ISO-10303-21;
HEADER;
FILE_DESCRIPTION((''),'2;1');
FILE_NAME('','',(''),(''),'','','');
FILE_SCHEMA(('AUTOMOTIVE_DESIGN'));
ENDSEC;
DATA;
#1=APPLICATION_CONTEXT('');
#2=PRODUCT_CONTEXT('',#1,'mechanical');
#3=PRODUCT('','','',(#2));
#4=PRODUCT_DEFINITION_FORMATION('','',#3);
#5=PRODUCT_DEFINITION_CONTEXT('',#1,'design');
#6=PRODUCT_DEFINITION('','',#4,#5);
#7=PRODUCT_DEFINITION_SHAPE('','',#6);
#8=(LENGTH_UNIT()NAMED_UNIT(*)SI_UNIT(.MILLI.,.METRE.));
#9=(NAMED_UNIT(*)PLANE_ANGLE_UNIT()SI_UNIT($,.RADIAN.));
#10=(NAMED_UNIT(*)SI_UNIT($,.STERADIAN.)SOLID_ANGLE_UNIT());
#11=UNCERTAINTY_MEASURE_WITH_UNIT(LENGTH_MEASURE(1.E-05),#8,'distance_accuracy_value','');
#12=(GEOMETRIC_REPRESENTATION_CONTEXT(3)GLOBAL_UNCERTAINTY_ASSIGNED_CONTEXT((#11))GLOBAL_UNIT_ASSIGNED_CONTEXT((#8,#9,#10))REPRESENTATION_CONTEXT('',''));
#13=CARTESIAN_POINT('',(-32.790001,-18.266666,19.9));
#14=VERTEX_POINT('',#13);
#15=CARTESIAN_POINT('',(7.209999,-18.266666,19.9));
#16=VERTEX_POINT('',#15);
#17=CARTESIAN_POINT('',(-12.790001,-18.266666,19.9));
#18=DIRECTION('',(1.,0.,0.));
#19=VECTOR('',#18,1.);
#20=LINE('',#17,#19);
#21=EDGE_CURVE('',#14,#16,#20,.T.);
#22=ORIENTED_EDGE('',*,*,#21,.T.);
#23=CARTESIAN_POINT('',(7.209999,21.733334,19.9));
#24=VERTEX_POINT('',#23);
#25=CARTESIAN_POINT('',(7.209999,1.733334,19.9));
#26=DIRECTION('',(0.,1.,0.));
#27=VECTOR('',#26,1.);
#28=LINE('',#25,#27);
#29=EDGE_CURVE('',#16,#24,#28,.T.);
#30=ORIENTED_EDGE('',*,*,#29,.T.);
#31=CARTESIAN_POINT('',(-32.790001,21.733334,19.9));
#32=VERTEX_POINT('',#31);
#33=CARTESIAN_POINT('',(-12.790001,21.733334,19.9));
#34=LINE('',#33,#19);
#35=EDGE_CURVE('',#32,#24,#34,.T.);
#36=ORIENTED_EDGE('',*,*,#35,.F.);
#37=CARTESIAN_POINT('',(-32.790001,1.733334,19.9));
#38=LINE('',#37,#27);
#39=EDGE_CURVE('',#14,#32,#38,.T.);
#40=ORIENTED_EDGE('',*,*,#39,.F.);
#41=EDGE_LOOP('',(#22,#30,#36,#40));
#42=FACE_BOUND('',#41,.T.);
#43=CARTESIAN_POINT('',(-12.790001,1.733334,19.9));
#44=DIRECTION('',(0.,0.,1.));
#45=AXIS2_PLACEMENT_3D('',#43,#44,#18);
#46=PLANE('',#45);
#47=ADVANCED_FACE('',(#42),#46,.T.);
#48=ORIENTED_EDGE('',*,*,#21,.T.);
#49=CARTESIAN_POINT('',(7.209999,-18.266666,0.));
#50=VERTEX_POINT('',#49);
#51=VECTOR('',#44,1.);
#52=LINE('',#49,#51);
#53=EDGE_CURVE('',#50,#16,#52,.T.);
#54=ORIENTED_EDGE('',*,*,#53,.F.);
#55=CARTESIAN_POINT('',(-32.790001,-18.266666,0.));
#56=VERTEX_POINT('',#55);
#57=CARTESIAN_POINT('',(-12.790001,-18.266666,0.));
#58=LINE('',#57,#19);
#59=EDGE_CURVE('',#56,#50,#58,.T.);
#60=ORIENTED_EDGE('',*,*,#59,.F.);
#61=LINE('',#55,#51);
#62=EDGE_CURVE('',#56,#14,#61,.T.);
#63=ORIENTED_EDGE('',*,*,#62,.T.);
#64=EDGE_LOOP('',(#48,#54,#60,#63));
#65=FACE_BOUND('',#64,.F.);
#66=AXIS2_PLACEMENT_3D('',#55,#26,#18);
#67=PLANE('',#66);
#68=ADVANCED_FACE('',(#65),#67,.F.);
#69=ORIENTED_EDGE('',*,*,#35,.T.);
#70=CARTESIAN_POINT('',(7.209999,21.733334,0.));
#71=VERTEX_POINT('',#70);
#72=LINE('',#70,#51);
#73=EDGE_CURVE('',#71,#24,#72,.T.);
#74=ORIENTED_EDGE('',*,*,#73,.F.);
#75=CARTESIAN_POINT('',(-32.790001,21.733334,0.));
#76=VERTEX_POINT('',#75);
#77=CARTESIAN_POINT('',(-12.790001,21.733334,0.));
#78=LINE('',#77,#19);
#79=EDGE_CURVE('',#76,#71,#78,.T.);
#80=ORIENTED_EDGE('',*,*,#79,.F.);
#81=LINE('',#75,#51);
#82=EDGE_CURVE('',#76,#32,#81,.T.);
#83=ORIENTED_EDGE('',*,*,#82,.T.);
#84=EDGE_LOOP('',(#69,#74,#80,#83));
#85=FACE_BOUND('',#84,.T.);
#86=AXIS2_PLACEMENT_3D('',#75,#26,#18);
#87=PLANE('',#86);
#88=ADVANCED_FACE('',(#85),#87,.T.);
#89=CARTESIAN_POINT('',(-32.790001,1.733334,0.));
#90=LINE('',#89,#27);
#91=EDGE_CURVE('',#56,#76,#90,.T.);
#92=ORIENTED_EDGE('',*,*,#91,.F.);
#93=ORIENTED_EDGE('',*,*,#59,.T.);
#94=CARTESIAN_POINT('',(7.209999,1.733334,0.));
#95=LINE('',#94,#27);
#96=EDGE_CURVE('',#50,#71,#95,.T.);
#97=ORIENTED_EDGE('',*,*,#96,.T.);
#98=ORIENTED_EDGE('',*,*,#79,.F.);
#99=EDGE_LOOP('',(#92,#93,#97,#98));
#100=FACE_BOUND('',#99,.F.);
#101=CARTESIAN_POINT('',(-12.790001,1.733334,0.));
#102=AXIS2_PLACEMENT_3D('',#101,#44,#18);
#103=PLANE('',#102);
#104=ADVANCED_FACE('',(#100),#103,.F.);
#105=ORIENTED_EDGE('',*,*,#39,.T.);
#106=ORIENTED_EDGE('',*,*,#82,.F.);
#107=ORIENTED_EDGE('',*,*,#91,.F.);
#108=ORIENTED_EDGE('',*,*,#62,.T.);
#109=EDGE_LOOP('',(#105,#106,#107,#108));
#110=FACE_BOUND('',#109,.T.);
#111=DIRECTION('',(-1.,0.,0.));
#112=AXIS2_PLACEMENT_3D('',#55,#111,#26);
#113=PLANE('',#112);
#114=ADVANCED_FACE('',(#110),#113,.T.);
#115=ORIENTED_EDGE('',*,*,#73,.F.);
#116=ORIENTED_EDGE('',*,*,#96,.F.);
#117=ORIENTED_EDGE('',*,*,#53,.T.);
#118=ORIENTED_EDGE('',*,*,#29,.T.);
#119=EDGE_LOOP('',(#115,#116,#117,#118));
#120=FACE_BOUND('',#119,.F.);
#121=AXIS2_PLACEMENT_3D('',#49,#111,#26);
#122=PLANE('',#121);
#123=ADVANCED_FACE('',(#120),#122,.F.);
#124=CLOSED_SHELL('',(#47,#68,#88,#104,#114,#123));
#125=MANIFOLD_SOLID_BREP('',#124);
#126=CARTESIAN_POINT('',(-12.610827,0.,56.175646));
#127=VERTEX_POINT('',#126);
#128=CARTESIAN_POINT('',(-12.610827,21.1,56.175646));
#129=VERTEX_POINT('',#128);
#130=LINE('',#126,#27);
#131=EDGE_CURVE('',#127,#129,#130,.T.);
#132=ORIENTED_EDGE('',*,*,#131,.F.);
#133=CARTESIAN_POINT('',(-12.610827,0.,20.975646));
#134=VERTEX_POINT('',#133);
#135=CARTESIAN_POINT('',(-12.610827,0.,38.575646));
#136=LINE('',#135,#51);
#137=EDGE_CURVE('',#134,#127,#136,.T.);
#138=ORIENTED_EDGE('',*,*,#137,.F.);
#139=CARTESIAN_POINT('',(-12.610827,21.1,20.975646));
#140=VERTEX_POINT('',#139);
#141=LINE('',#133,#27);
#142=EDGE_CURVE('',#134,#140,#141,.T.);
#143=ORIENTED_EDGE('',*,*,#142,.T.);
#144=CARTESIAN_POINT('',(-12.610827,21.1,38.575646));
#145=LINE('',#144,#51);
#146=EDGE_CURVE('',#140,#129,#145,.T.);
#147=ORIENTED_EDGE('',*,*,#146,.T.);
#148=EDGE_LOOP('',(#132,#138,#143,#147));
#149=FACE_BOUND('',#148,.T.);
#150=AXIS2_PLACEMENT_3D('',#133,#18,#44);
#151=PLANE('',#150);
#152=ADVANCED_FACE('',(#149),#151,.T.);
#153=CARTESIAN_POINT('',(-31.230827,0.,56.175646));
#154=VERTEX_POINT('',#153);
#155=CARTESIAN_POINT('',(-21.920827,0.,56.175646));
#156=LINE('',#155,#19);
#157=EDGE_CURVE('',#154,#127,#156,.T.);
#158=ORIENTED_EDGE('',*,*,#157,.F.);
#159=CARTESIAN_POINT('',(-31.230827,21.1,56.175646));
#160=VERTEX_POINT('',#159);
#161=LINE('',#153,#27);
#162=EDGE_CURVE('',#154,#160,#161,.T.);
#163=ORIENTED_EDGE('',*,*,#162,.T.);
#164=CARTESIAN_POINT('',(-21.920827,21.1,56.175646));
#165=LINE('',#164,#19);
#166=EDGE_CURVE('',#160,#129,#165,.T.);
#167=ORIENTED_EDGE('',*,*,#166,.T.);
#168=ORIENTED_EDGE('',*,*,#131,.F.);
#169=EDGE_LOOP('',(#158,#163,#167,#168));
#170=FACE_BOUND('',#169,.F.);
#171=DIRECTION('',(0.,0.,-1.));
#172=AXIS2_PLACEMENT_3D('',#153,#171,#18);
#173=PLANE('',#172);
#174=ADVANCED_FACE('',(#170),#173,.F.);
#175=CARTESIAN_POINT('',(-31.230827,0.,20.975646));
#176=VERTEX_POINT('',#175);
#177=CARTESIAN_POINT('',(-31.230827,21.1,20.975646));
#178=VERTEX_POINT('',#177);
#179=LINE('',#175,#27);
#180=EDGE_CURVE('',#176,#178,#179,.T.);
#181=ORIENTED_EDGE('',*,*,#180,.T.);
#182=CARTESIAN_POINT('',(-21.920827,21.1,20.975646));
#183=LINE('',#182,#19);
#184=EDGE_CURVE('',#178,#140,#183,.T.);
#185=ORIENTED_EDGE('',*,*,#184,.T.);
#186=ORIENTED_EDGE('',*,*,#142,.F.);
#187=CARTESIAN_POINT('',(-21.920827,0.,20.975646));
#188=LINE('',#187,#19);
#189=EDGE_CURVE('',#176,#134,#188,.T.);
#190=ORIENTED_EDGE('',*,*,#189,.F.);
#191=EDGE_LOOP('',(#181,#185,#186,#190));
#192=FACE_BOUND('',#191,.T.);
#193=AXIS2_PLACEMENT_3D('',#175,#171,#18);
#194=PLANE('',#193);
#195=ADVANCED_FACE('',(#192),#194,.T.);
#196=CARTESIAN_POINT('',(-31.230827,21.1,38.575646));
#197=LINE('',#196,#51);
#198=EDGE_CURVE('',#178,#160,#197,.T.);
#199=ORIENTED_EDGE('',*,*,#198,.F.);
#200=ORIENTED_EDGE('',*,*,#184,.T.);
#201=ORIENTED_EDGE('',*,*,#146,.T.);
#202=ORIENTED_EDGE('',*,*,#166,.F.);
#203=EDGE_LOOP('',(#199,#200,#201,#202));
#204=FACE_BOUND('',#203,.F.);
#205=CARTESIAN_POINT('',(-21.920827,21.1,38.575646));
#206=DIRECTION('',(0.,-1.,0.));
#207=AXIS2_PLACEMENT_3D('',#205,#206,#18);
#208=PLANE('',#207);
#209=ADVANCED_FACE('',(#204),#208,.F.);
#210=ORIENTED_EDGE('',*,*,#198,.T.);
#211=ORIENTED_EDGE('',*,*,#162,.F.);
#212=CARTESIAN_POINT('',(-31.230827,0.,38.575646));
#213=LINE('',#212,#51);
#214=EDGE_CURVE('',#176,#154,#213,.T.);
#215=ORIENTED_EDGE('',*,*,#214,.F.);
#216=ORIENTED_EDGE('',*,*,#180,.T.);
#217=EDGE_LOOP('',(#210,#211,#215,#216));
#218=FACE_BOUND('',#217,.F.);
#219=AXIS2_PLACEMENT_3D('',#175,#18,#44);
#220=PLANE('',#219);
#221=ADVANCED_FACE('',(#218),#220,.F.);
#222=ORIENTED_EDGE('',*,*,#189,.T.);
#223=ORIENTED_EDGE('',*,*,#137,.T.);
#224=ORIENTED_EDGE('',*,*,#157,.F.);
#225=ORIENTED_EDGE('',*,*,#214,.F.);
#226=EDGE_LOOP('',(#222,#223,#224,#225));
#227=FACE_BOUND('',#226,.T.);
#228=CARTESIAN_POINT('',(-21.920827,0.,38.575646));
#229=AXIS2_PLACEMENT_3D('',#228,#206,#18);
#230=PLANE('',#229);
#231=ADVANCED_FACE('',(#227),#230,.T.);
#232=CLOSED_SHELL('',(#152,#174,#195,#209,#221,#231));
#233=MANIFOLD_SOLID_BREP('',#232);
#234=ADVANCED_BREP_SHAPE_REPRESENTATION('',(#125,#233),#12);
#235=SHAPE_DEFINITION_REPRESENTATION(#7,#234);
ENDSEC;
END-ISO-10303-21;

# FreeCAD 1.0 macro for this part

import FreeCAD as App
import Part
import Sketcher
from FreeCAD import Vector
Q = App.Units.Quantity

doc = App.newDocument("Part")
body = doc.addObject("PartDesign::Body", "Body")

sketch1 = body.newObject("Sketcher::SketchObject", "Sketch")
sketch1.AttachmentSupport = (doc.getObject("XY_Plane"), [""])
sketch1.MapMode = "FlatFace"
sketch1.addGeometry([
    Part.LineSegment(Vector(-32.790001, 21.733334, 0), Vector(-32.790001, -18.266666, 0)),
    Part.LineSegment(Vector(-32.790001, -18.266666, 0), Vector(7.209999, -18.266666, 0)),
    Part.LineSegment(Vector(7.209999, -18.266666, 0), Vector(7.209999, 21.733334, 0)),
    Part.LineSegment(Vector(7.209999, 21.733334, 0), Vector(-32.790001, 21.733334, 0)),
], False)
sketch1.addConstraint([
    Sketcher.Constraint("Coincident", 0, 2, 1, 1),
    Sketcher.Constraint("Coincident", 1, 2, 2, 1),
    Sketcher.Constraint("Coincident", 2, 2, 3, 1),
    Sketcher.Constraint("Coincident", 3, 2, 0, 1),
    Sketcher.Constraint("Vertical", 0),
    Sketcher.Constraint("Horizontal", 1),
    Sketcher.Constraint("Vertical", 2),
    Sketcher.Constraint("Horizontal", 3),
    Sketcher.Constraint("Equal", 3, 0),
    Sketcher.Constraint("DistanceX", 1, 1, 1, 2, Q("40 mm")),
    Sketcher.Constraint("DistanceX", 0, 2, -1, 1, Q("32.790001 mm")),
    Sketcher.Constraint("DistanceY", 0, 2, -1, 1, Q("18.266666 mm")),
])
pad1 = body.newObject("PartDesign::Pad", "Pad")
pad1.Profile = sketch1
pad1.Length = 19.9
body2 = doc.addObject("PartDesign::Body", "Body001")

sketch2 = body2.newObject("Sketcher::SketchObject", "Sketch001")
sketch2.AttachmentSupport = (doc.getObject("XZ_Plane001"), [""])
sketch2.MapMode = "FlatFace"
sketch2.addGeometry([
    Part.LineSegment(Vector(-31.230827, 56.175646, 0), Vector(-31.230827, 20.975646, 0)),
    Part.LineSegment(Vector(-31.230827, 20.975646, 0), Vector(-12.610827, 20.975646, 0)),
    Part.LineSegment(Vector(-12.610827, 20.975646, 0), Vector(-12.610827, 56.175646, 0)),
    Part.LineSegment(Vector(-12.610827, 56.175646, 0), Vector(-31.230827, 56.175646, 0)),
], False)
sketch2.addConstraint([
    Sketcher.Constraint("Coincident", 0, 2, 1, 1),
    Sketcher.Constraint("Coincident", 1, 2, 2, 1),
    Sketcher.Constraint("Coincident", 2, 2, 3, 1),
    Sketcher.Constraint("Coincident", 3, 2, 0, 1),
    Sketcher.Constraint("Vertical", 0),
    Sketcher.Constraint("Horizontal", 1),
    Sketcher.Constraint("Vertical", 2),
    Sketcher.Constraint("Horizontal", 3),
    Sketcher.Constraint("DistanceY", 0, 2, 0, 1, Q("35.2 mm")),
    Sketcher.Constraint("DistanceX", 1, 1, 1, 2, Q("18.62 mm")),
    Sketcher.Constraint("DistanceX", 0, 2, -1, 1, Q("31.230827 mm")),
    Sketcher.Constraint("DistanceY", -1, 1, 0, 2, Q("20.975646 mm")),
])
pad2 = body2.newObject("PartDesign::Pad", "Pad001")
pad2.Profile = sketch2
pad2.Length = 21.1
pad2.Reversed = True

doc.recompute()
